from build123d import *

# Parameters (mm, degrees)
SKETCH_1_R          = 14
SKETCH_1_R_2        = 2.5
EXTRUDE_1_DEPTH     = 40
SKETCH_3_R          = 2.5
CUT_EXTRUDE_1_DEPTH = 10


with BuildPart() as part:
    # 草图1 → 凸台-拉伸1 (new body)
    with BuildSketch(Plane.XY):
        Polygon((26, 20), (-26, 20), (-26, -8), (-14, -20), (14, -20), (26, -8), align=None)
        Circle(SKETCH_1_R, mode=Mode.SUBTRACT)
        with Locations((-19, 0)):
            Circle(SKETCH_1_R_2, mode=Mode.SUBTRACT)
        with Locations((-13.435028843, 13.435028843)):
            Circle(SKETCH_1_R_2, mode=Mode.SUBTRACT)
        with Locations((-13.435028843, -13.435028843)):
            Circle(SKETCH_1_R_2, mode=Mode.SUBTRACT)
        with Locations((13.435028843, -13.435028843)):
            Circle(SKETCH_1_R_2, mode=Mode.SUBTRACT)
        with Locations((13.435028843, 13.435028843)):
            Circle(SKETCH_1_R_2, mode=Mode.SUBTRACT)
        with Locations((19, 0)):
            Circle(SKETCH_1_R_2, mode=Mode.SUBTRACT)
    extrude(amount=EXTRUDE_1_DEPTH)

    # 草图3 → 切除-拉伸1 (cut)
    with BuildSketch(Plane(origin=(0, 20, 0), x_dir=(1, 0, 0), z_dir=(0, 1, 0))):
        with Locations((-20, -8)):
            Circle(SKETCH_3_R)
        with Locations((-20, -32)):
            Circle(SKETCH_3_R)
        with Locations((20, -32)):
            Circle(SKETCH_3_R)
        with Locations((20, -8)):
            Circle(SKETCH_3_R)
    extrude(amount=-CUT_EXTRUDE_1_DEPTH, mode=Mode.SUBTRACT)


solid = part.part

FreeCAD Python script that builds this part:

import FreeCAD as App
import Part
import Sketcher
from FreeCAD import Vector


def add_polygon(sketch, points):
    """Adds a closed chain of lines whose ends are joined by coincident constraints."""
    first, n = sketch.GeometryCount, len(points)
    for a, b in zip(points, points[1:] + points[:1]):
        sketch.addGeometry(Part.LineSegment(App.Vector(*a, 0), App.Vector(*b, 0)), False)
    for i in range(n):
        sketch.addConstraint(Sketcher.Constraint("Coincident", first + i, 2, first + (i + 1) % n, 1))

doc = App.newDocument("Part")
body = doc.addObject("PartDesign::Body", "Body")

# Sketch on XY plane
sketch1 = doc.addObject("Sketcher::SketchObject", "Sketch")
body.addObject(sketch1)
sketch1.AttachmentSupport = (doc.XY_Plane, [""])
sketch1.MapMode = "FlatFace"
add_polygon(sketch1, [(26, 20), (-26, 20), (-26, -8), (-14, -20), (14, -20), (26, -8)])  # lines 0-5
sketch1.addGeometry(Part.Circle(Vector(-13.4, -13.4, 0), Vector(0, 0, 1), 2.5), False)  # 6
sketch1.addGeometry(Part.Circle(Vector(13.4, -13.4, 0), Vector(0, 0, 1), 2.5), False)  # 7
sketch1.addGeometry(Part.Circle(Vector(-19, 0, 0), Vector(0, 0, 1), 2.5), False)  # 8
sketch1.addGeometry(Part.Circle(Vector(-13.4, 13.4, 0), Vector(0, 0, 1), 2.5), False)  # 9
sketch1.addGeometry(Part.Circle(Vector(0, 0, 0), Vector(0, 0, 1), 14), False)  # 10
sketch1.addGeometry(Part.Circle(Vector(19, 0, 0), Vector(0, 0, 1), 2.5), False)  # 11
sketch1.addGeometry(Part.Circle(Vector(13.4, 13.4, 0), Vector(0, 0, 1), 2.5), False)  # 12
sketch1.addConstraint(Sketcher.Constraint("Horizontal", 0))
sketch1.addConstraint(Sketcher.Constraint("Vertical", 1))
sketch1.addConstraint(Sketcher.Constraint("Horizontal", 3))
sketch1.addConstraint(Sketcher.Constraint("Vertical", 5))
sketch1.addConstraint(Sketcher.Constraint("Coincident", 10, 3, -1, 1))
sketch1.addConstraint(Sketcher.Constraint("Equal", 6, 7))
sketch1.addConstraint(Sketcher.Constraint("Equal", 7, 8))
sketch1.addConstraint(Sketcher.Constraint("Equal", 8, 9))
sketch1.addConstraint(Sketcher.Constraint("Equal", 9, 11))
sketch1.addConstraint(Sketcher.Constraint("Equal", 11, 12))
sketch1.addConstraint(Sketcher.Constraint("Symmetric", 7, 3, 9, 3, -1, 1))
sketch1.addConstraint(Sketcher.Constraint("Symmetric", 8, 3, 11, 3, -1, 1))
sketch1.addConstraint(Sketcher.Constraint("Symmetric", 6, 3, 12, 3, -1, 1))
sketch1.addConstraint(Sketcher.Constraint("Symmetric", 6, 3, 7, 3, -2))
sketch1.addConstraint(Sketcher.Constraint("Symmetric", 1, 2, 4, 2, -2))
sketch1.addConstraint(Sketcher.Constraint("PointOnObject", 8, 3, -1))
sketch1.addConstraint(Sketcher.Constraint("Perpendicular", 2, 4))
sketch1.addConstraint(Sketcher.Constraint("Equal", 3, 1))
sketch1.addConstraint(Sketcher.Constraint("Equal", 2, 4))
sketch1.addConstraint(Sketcher.Constraint("Diameter", 6, 5.0))
sketch1.addConstraint(Sketcher.Constraint("Diameter", 10, 28.0))
sketch1.addConstraint(Sketcher.Constraint("DistanceX", 0, 2, 0, 1, 52.0))
sketch1.addConstraint(Sketcher.Constraint("DistanceX", 3, 1, 3, 2, 28.0))
sketch1.addConstraint(Sketcher.Constraint("DistanceX", 8, 3, -1, 1, 19.0))
sketch1.addConstraint(Sketcher.Constraint("DistanceY", -1, 1, 0, 2, 20.0))
sketch1.addConstraint(Sketcher.Constraint("DistanceX", 6, 3, -1, 1, 13.435029))
sketch1.addConstraint(Sketcher.Constraint("DistanceY", 6, 3, -1, 1, 13.435029))
pad1 = doc.addObject("PartDesign::Pad", "Pad")
body.addObject(pad1)
pad1.Profile = sketch1
pad1.Length = 40

# Sketch on XZ plane
sketch2 = doc.addObject("Sketcher::SketchObject", "Sketch001")
body.addObject(sketch2)
sketch2.AttachmentSupport = (doc.XZ_Plane, [""])
sketch2.MapMode = "FlatFace"
sketch2.AttachmentOffset = App.Placement(Vector(0, 0, -20), App.Rotation())
sketch2.addGeometry(Part.Circle(Vector(-20, 8, 0), Vector(0, 0, 1), 2.5), False)
sketch2.addGeometry(Part.Circle(Vector(-20, 32, 0), Vector(0, 0, 1), 2.5), False)
sketch2.addGeometry(Part.Circle(Vector(20, 32, 0), Vector(0, 0, 1), 2.5), False)
sketch2.addGeometry(Part.Circle(Vector(20, 8, 0), Vector(0, 0, 1), 2.5), False)
sketch2.addConstraint(Sketcher.Constraint("Equal", 0, 1))
sketch2.addConstraint(Sketcher.Constraint("Equal", 1, 2))
sketch2.addConstraint(Sketcher.Constraint("Equal", 2, 3))
sketch2.addConstraint(Sketcher.Constraint("Symmetric", 1, 3, 2, 3, -2))
sketch2.addConstraint(Sketcher.Constraint("Symmetric", 0, 3, 3, 3, -2))
sketch2.addConstraint(Sketcher.Constraint("Vertical", 0, 3, 1, 3))
sketch2.addConstraint(Sketcher.Constraint("Diameter", 0, 5.0))
sketch2.addConstraint(Sketcher.Constraint("DistanceX", 0, 3, -1, 1, 20.0))
sketch2.addConstraint(Sketcher.Constraint("DistanceY", -1, 1, 0, 3, 8.0))
sketch2.addConstraint(Sketcher.Constraint("DistanceY", -1, 1, 1, 3, 32.0))
pocket1 = doc.addObject("PartDesign::Pocket", "Pocket")
body.addObject(pocket1)
pocket1.Profile = sketch2
pocket1.Length = 10
pocket1.Reversed = True

doc.recompute()
